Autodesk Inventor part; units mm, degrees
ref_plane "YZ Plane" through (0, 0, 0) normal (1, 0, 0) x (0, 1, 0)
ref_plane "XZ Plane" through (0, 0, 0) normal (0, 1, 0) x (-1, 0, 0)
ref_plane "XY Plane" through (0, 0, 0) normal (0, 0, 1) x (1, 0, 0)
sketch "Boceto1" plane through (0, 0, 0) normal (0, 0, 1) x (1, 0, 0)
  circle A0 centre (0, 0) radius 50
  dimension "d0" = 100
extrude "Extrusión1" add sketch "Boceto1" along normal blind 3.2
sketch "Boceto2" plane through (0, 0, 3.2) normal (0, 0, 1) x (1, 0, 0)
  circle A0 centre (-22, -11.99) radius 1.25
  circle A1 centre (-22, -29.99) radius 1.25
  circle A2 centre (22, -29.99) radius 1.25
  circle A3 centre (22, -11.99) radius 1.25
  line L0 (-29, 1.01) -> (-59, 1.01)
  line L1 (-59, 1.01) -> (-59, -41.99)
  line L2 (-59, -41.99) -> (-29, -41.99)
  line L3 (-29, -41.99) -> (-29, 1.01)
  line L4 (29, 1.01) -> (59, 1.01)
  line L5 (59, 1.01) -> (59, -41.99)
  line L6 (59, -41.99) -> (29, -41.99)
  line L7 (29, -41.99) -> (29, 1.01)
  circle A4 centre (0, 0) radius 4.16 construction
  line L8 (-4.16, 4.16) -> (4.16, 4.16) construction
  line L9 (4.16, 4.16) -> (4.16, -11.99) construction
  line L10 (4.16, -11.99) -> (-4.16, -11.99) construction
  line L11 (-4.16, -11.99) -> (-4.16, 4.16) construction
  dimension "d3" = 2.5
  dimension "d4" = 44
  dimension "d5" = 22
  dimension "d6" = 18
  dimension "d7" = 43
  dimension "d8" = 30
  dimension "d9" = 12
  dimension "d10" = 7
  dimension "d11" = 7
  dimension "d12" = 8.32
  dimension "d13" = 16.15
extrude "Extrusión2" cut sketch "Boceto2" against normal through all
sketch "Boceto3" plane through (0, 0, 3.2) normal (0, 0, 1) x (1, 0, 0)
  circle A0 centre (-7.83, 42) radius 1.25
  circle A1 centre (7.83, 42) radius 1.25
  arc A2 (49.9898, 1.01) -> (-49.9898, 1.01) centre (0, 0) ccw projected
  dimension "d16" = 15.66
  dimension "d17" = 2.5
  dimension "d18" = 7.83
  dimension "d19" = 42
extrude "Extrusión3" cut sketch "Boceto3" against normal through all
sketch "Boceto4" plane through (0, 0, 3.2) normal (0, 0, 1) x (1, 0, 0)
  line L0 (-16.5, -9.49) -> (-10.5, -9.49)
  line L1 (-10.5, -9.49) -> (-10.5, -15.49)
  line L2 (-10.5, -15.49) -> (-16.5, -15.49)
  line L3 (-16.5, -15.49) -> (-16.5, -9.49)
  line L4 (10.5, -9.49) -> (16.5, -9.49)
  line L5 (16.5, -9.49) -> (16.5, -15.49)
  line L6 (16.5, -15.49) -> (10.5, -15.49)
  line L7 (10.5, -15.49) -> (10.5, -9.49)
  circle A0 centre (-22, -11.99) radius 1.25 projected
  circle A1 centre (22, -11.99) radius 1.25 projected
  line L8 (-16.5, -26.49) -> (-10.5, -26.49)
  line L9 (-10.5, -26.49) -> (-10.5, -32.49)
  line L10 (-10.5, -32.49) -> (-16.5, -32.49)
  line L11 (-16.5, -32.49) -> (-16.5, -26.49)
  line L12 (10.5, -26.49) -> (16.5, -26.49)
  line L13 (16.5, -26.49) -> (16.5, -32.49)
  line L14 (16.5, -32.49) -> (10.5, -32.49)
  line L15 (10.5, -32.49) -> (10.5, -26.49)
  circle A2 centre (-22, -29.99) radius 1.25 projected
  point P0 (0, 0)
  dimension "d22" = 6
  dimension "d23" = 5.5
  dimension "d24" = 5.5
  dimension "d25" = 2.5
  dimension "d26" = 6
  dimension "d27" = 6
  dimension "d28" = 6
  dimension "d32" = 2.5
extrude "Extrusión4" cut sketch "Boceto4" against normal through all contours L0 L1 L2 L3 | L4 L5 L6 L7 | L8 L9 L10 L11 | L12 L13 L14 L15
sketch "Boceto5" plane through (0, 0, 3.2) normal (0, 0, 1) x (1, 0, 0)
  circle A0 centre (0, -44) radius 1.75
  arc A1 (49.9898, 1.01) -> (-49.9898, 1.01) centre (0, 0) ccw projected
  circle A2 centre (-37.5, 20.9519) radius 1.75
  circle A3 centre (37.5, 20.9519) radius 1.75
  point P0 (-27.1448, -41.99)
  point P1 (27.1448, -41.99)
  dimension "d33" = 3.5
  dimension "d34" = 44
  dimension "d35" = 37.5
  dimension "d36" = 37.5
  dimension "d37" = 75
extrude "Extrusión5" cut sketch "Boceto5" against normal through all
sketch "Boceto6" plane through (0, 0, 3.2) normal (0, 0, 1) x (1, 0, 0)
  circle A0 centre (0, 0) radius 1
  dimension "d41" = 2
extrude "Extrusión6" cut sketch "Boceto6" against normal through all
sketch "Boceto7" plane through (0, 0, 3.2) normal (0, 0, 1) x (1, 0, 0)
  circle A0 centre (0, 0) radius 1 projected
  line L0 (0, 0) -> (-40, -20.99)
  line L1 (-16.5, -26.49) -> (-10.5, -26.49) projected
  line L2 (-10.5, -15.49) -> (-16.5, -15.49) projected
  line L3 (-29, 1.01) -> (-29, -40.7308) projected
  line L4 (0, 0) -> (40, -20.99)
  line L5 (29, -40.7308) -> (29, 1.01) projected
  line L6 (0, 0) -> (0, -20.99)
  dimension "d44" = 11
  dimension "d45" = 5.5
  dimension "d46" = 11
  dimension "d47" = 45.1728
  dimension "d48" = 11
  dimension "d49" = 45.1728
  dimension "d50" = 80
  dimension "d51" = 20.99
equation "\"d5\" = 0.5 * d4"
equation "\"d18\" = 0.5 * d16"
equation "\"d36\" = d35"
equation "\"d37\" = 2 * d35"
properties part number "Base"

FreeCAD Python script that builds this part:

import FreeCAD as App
import Part
import Sketcher

V = App.Vector
Q = App.Units.Quantity

doc = App.newDocument("Part")
body = doc.addObject("PartDesign::Body", "Body")

sketch1 = body.newObject("Sketcher::SketchObject", "Sketch")
sketch1.AttachmentSupport = (doc.getObject("XY_Plane"), [""])
sketch1.MapMode = "FlatFace"
sketch1.addGeometry(Part.Circle(V(0, 0, 0), V(0, 0, 1), 50), False)
sketch1.addConstraint([
    Sketcher.Constraint("Coincident", 0, 3, -1, 1),
    Sketcher.Constraint("Diameter", 0, Q("100 mm")),
])
pad1 = body.newObject("PartDesign::Pad", "Pad")
pad1.Profile = sketch1
pad1.Length = 3.2

sketch2 = body.newObject("Sketcher::SketchObject", "Sketch001")
sketch2.AttachmentSupport = (doc.getObject("XY_Plane"), [""])
sketch2.MapMode = "FlatFace"
sketch2.AttachmentOffset = App.Placement(V(0, 0, 3.2), App.Rotation())
sketch2.addGeometry([
    Part.Circle(V(-22, -12, 0), V(0, 0, 1), 1.2),
    Part.Circle(V(-22, -30, 0), V(0, 0, 1), 1.2),
    Part.Circle(V(22, -30, 0), V(0, 0, 1), 1.2),
    Part.Circle(V(22, -12, 0), V(0, 0, 1), 1.2),
    Part.LineSegment(V(-29, -42, 0), V(-29, 1, 0)),
    Part.LineSegment(V(-29, 1, 0), V(-59, 1, 0)),
    Part.LineSegment(V(-59, 1, 0), V(-59, -42, 0)),
    Part.LineSegment(V(-59, -42, 0), V(-29, -42, 0)),
    Part.LineSegment(V(59, 1, 0), V(29, 1, 0)),
    Part.LineSegment(V(29, 1, 0), V(29, -42, 0)),
    Part.LineSegment(V(29, -42, 0), V(59, -42, 0)),
    Part.LineSegment(V(59, -42, 0), V(59, 1, 0)),
], False)
sketch2.addConstraint([
    Sketcher.Constraint("Coincident", 4, 2, 5, 1),
    Sketcher.Constraint("Coincident", 5, 2, 6, 1),
    Sketcher.Constraint("Coincident", 6, 2, 7, 1),
    Sketcher.Constraint("Coincident", 7, 2, 4, 1),
    Sketcher.Constraint("Coincident", 8, 2, 9, 1),
    Sketcher.Constraint("Coincident", 9, 2, 10, 1),
    Sketcher.Constraint("Coincident", 10, 2, 11, 1),
    Sketcher.Constraint("Coincident", 11, 2, 8, 1),
    Sketcher.Constraint("Vertical", 4),
    Sketcher.Constraint("Horizontal", 5),
    Sketcher.Constraint("Vertical", 6),
    Sketcher.Constraint("Horizontal", 7),
    Sketcher.Constraint("Horizontal", 8),
    Sketcher.Constraint("Vertical", 9),
    Sketcher.Constraint("Horizontal", 10),
    Sketcher.Constraint("Vertical", 11),
    Sketcher.Constraint("Equal", 0, 1),
    Sketcher.Constraint("Equal", 1, 2),
    Sketcher.Constraint("Equal", 2, 3),
    Sketcher.Constraint("Symmetric", 1, 3, 2, 3, -2),
    Sketcher.Constraint("Symmetric", 0, 3, 3, 3, -2),
    Sketcher.Constraint("Symmetric", 4, 2, 8, 2, -2),
    Sketcher.Constraint("Symmetric", 6, 2, 10, 2, -2),
    Sketcher.Constraint("Vertical", 0, 3, 1, 3),
    Sketcher.Constraint("Diameter", 0, Q("2.5 mm")),
    Sketcher.Constraint("DistanceX", 5, 2, 5, 1, Q("30 mm")),
    Sketcher.Constraint("DistanceY", 4, 1, 4, 2, Q("43 mm")),
    Sketcher.Constraint("DistanceX", 0, 3, -1, 1, Q("22 mm")),
    Sketcher.Constraint("DistanceY", 1, 3, 0, 3, Q("18 mm")),
    Sketcher.Constraint("DistanceX", 4, 2, 0, 3, Q("7 mm")),
    Sketcher.Constraint("DistanceY", 6, 2, 1, 3, Q("12 mm")),
    Sketcher.Constraint("DistanceY", 0, 3, -1, 1, Q("11.99 mm")),
])
pocket1 = body.newObject("PartDesign::Pocket", "Pocket")
pocket1.Profile = sketch2
pocket1.Type = "ThroughAll"

sketch3 = body.newObject("Sketcher::SketchObject", "Sketch002")
sketch3.AttachmentSupport = (doc.getObject("XY_Plane"), [""])
sketch3.MapMode = "FlatFace"
sketch3.AttachmentOffset = App.Placement(V(0, 0, 3.2), App.Rotation())
sketch3.addGeometry([
    Part.Circle(V(-7.8, 42, 0), V(0, 0, 1), 1.2),
    Part.Circle(V(7.8, 42, 0), V(0, 0, 1), 1.2),
], False)
sketch3.addConstraint([
    Sketcher.Constraint("Equal", 0, 1),
    Sketcher.Constraint("Symmetric", 0, 3, 1, 3, -2),
    Sketcher.Constraint("Diameter", 0, Q("2.5 mm")),
    Sketcher.Constraint("DistanceY", -1, 1, 0, 3, Q("42 mm")),
    Sketcher.Constraint("DistanceX", 0, 3, -1, 1, Q("7.83 mm")),
])
pocket2 = body.newObject("PartDesign::Pocket", "Pocket001")
pocket2.Profile = sketch3
pocket2.Type = "ThroughAll"

sketch4 = body.newObject("Sketcher::SketchObject", "Sketch003")
sketch4.AttachmentSupport = (doc.getObject("XY_Plane"), [""])
sketch4.MapMode = "FlatFace"
sketch4.AttachmentOffset = App.Placement(V(0, 0, 3.2), App.Rotation())
sketch4.addGeometry([
    Part.LineSegment(V(-10, -9, 0), V(-16, -9, 0)),
    Part.LineSegment(V(-16, -9, 0), V(-16, -15, 0)),
    Part.LineSegment(V(-16, -15, 0), V(-10, -15, 0)),
    Part.LineSegment(V(-10, -15, 0), V(-10, -9, 0)),
    Part.LineSegment(V(16, -9, 0), V(10, -9, 0)),
    Part.LineSegment(V(10, -9, 0), V(10, -15, 0)),
    Part.LineSegment(V(10, -15, 0), V(16, -15, 0)),
    Part.LineSegment(V(16, -15, 0), V(16, -9, 0)),
    Part.LineSegment(V(-10, -26, 0), V(-16, -26, 0)),
    Part.LineSegment(V(-16, -26, 0), V(-16, -32, 0)),
    Part.LineSegment(V(-16, -32, 0), V(-10, -32, 0)),
    Part.LineSegment(V(-10, -32, 0), V(-10, -26, 0)),
    Part.LineSegment(V(16, -26, 0), V(10, -26, 0)),
    Part.LineSegment(V(10, -26, 0), V(10, -32, 0)),
    Part.LineSegment(V(10, -32, 0), V(16, -32, 0)),
    Part.LineSegment(V(16, -32, 0), V(16, -26, 0)),
], False)
sketch4.addConstraint([
    Sketcher.Constraint("Coincident", 0, 2, 1, 1),
    Sketcher.Constraint("Coincident", 1, 2, 2, 1),
    Sketcher.Constraint("Coincident", 2, 2, 3, 1),
    Sketcher.Constraint("Coincident", 3, 2, 0, 1),
    Sketcher.Constraint("Coincident", 4, 2, 5, 1),
    Sketcher.Constraint("Coincident", 5, 2, 6, 1),
    Sketcher.Constraint("Coincident", 6, 2, 7, 1),
    Sketcher.Constraint("Coincident", 7, 2, 4, 1),
    Sketcher.Constraint("Coincident", 8, 2, 9, 1),
    Sketcher.Constraint("Coincident", 9, 2, 10, 1),
    Sketcher.Constraint("Coincident", 10, 2, 11, 1),
    Sketcher.Constraint("Coincident", 11, 2, 8, 1),
    Sketcher.Constraint("Coincident", 12, 2, 13, 1),
    Sketcher.Constraint("Coincident", 13, 2, 14, 1),
    Sketcher.Constraint("Coincident", 14, 2, 15, 1),
    Sketcher.Constraint("Coincident", 15, 2, 12, 1),
    Sketcher.Constraint("Horizontal", 0),
    Sketcher.Constraint("Vertical", 1),
    Sketcher.Constraint("Horizontal", 2),
    Sketcher.Constraint("Vertical", 3),
    Sketcher.Constraint("Horizontal", 4),
    Sketcher.Constraint("Vertical", 5),
    Sketcher.Constraint("Horizontal", 6),
    Sketcher.Constraint("Vertical", 7),
    Sketcher.Constraint("Horizontal", 8),
    Sketcher.Constraint("Vertical", 9),
    Sketcher.Constraint("Horizontal", 10),
    Sketcher.Constraint("Vertical", 11),
    Sketcher.Constraint("Horizontal", 12),
    Sketcher.Constraint("Vertical", 13),
    Sketcher.Constraint("Horizontal", 14),
    Sketcher.Constraint("Vertical", 15),
    Sketcher.Constraint("Symmetric", 3, 2, 4, 2, -2),
    Sketcher.Constraint("Symmetric", 1, 2, 6, 2, -2),
    Sketcher.Constraint("Symmetric", 11, 2, 12, 2, -2),
    Sketcher.Constraint("Symmetric", 9, 2, 14, 2, -2),
    Sketcher.Constraint("Vertical", 1, 2, 8, 2),
    Sketcher.Constraint("Vertical", 3, 2, 10, 2),
    Sketcher.Constraint("Equal", 14, 1),
    Sketcher.Constraint("Equal", 7, 9),
    Sketcher.Constraint("DistanceX", 0, 2, 0, 1, Q("6 mm")),
    Sketcher.Constraint("DistanceX", 3, 2, 4, 2, Q("21 mm")),
    Sketcher.Constraint("DistanceY", 8, 2, 1, 2, Q("11 mm")),
    Sketcher.Constraint("DistanceY", 0, 2, -1, 1, Q("9.49 mm")),
])
pocket3 = body.newObject("PartDesign::Pocket", "Pocket002")
pocket3.Profile = sketch4
pocket3.Type = "ThroughAll"

sketch5 = body.newObject("Sketcher::SketchObject", "Sketch004")
sketch5.AttachmentSupport = (doc.getObject("XY_Plane"), [""])
sketch5.MapMode = "FlatFace"
sketch5.AttachmentOffset = App.Placement(V(0, 0, 3.2), App.Rotation())
sketch5.addGeometry([
    Part.Circle(V(0, -44, 0), V(0, 0, 1), 1.8),
    Part.Circle(V(-37.5, 21, 0), V(0, 0, 1), 1.8),
    Part.Circle(V(37.5, 21, 0), V(0, 0, 1), 1.8),
], False)
sketch5.addConstraint([
    Sketcher.Constraint("Equal", 0, 1),
    Sketcher.Constraint("Equal", 1, 2),
    Sketcher.Constraint("Symmetric", 1, 3, 2, 3, -2),
    Sketcher.Constraint("PointOnObject", 0, 3, -2),
    Sketcher.Constraint("Diameter", 0, Q("3.5 mm")),
    Sketcher.Constraint("DistanceY", 0, 3, -1, 1, Q("44 mm")),
    Sketcher.Constraint("DistanceX", 1, 3, 2, 3, Q("75 mm")),
    Sketcher.Constraint("DistanceY", -1, 1, 1, 3, Q("20.952 mm")),
])
pocket4 = body.newObject("PartDesign::Pocket", "Pocket003")
pocket4.Profile = sketch5
pocket4.Type = "ThroughAll"

sketch6 = body.newObject("Sketcher::SketchObject", "Sketch005")
sketch6.AttachmentSupport = (doc.getObject("XY_Plane"), [""])
sketch6.MapMode = "FlatFace"
sketch6.AttachmentOffset = App.Placement(V(0, 0, 3.2), App.Rotation())
sketch6.addGeometry(Part.Circle(V(0, 0, 0), V(0, 0, 1), 1), False)
sketch6.addConstraint([
    Sketcher.Constraint("Coincident", 0, 3, -1, 1),
    Sketcher.Constraint("Diameter", 0, Q("2 mm")),
])
pocket5 = body.newObject("PartDesign::Pocket", "Pocket004")
pocket5.Profile = sketch6
pocket5.Type = "ThroughAll"

doc.recompute()
